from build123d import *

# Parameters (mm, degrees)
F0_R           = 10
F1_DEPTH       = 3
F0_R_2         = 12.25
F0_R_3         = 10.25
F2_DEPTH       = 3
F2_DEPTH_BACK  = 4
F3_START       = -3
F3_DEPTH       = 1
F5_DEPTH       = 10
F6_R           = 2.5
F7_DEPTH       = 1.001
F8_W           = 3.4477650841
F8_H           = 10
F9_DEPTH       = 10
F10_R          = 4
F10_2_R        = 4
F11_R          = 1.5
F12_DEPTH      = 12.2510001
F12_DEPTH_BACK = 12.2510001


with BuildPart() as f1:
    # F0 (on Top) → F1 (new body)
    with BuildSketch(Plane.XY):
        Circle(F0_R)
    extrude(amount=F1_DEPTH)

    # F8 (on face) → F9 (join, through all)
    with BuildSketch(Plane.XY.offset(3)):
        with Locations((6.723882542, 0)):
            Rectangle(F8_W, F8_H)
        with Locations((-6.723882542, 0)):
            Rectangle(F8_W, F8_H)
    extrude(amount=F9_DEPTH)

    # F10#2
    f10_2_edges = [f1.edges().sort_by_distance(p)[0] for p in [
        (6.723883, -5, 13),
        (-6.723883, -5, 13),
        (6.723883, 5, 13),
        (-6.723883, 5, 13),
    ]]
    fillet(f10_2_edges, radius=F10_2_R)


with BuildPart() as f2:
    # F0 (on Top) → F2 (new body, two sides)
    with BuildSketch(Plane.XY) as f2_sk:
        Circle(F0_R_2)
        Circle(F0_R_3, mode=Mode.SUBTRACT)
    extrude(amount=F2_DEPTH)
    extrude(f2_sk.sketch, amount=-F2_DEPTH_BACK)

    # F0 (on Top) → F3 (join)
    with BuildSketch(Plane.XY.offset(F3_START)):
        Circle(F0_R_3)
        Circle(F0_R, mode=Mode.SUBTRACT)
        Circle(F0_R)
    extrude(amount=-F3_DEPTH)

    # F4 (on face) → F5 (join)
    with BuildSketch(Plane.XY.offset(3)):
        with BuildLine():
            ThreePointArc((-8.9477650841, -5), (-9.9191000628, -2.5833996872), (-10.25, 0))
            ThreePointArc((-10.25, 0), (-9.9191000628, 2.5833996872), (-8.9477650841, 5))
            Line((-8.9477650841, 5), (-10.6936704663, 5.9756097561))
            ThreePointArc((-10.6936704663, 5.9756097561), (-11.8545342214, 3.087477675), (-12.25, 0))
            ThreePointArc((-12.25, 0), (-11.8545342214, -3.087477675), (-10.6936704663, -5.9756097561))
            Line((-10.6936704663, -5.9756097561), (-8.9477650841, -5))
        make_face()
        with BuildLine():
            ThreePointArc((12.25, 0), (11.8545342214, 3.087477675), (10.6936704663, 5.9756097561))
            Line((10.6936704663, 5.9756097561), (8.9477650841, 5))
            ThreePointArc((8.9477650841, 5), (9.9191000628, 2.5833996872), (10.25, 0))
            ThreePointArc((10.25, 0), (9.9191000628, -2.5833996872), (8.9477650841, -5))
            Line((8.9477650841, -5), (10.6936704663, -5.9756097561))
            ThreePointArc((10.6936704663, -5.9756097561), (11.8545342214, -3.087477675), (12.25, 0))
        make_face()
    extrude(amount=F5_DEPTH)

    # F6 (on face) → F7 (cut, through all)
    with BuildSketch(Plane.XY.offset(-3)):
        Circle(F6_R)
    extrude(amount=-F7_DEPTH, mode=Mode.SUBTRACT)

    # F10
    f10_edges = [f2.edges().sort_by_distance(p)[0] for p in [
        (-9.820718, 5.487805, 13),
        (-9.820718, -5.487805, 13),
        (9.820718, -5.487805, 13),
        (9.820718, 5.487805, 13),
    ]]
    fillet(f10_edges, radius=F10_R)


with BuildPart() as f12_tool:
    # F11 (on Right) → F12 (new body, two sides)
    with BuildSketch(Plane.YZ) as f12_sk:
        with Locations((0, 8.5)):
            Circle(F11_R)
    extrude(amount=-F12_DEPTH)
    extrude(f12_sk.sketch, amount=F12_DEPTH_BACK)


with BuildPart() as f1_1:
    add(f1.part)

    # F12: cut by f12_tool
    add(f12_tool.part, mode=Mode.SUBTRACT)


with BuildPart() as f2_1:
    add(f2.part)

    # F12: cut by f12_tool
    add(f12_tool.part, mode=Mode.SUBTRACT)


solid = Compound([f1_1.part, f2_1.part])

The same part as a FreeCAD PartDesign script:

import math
import FreeCAD as App
import Part
import Sketcher

V = App.Vector
Q = App.Units.Quantity


def edges_at(feature, points):
    """Names of the edges that pass closest to the given points."""
    edges = feature.Shape.Edges
    near = lambda p: min(range(len(edges)), key=lambda i: edges[i].distToShape(Part.Vertex(*p))[0])
    return sorted({f"Edge{near(p) + 1}" for p in points})

doc = App.newDocument("Part")
body = doc.addObject("PartDesign::Body", "Body")

sketch1 = doc.addObject("Sketcher::SketchObject", "Sketch")
body.addObject(sketch1)
sketch1.AttachmentSupport = (doc.XY_Plane, [""])
sketch1.MapMode = "FlatFace"
sketch1.addGeometry(Part.Circle(V(0, 0, 0), V(0, 0, 1), 10), False)
sketch1.addConstraint([
    Sketcher.Constraint("Coincident", 0, 3, -1, 1),
    Sketcher.Constraint("Diameter", 0, Q("20 mm")),
])
pad1 = doc.addObject("PartDesign::Pad", "Pad")
body.addObject(pad1)
pad1.Profile = sketch1
pad1.Length = 3

sketch2 = doc.addObject("Sketcher::SketchObject", "Sketch001")
body.addObject(sketch2)
sketch2.AttachmentSupport = (doc.XY_Plane, [""])
sketch2.MapMode = "FlatFace"
sketch2.AttachmentOffset = App.Placement(V(0, 0, 3), App.Rotation())
sketch2.addGeometry([
    Part.LineSegment(V(5, 5, 0), V(5, -5, 0)),
    Part.LineSegment(V(5, -5, 0), V(8.4, -5, 0)),
    Part.LineSegment(V(8.4, -5, 0), V(8.4, 5, 0)),
    Part.LineSegment(V(8.4, 5, 0), V(5, 5, 0)),
    Part.LineSegment(V(-8.4, 5, 0), V(-8.4, -5, 0)),
    Part.LineSegment(V(-8.4, -5, 0), V(-5, -5, 0)),
    Part.LineSegment(V(-5, -5, 0), V(-5, 5, 0)),
    Part.LineSegment(V(-5, 5, 0), V(-8.4, 5, 0)),
], False)
sketch2.addConstraint([
    Sketcher.Constraint("Coincident", 0, 2, 1, 1),
    Sketcher.Constraint("Coincident", 1, 2, 2, 1),
    Sketcher.Constraint("Coincident", 2, 2, 3, 1),
    Sketcher.Constraint("Coincident", 3, 2, 0, 1),
    Sketcher.Constraint("Coincident", 4, 2, 5, 1),
    Sketcher.Constraint("Coincident", 5, 2, 6, 1),
    Sketcher.Constraint("Coincident", 6, 2, 7, 1),
    Sketcher.Constraint("Coincident", 7, 2, 4, 1),
    Sketcher.Constraint("Vertical", 0),
    Sketcher.Constraint("Horizontal", 1),
    Sketcher.Constraint("Vertical", 2),
    Sketcher.Constraint("Horizontal", 3),
    Sketcher.Constraint("Vertical", 4),
    Sketcher.Constraint("Horizontal", 5),
    Sketcher.Constraint("Vertical", 6),
    Sketcher.Constraint("Horizontal", 7),
    Sketcher.Constraint("Symmetric", 2, 2, 4, 2, -1, 1),
    Sketcher.Constraint("Symmetric", 0, 2, 6, 2, -1, 1),
    Sketcher.Constraint("Horizontal", 1, 2, 4, 2),
    Sketcher.Constraint("DistanceY", 0, 2, 0, 1, Q("10 mm")),
    Sketcher.Constraint("DistanceX", -1, 1, 0, 2, Q("5 mm")),
    Sketcher.Constraint("DistanceX", 1, 1, 1, 2, Q("3.447765 mm")),
])
pad2 = doc.addObject("PartDesign::Pad", "Pad001")
body.addObject(pad2)
pad2.Profile = sketch2
pad2.Length = 10
doc.recompute()

fillet = doc.addObject("PartDesign::Fillet", "Fillet")
body.addObject(fillet)
fillet.Base = (pad2, edges_at(pad2, [
    (6.724, -5, 13),
    (-6.724, -5, 13),
    (6.724, 5, 13),
    (-6.724, 5, 13),
]))
fillet.Radius = 4
body2 = doc.addObject("PartDesign::Body", "Body001")

sketch3 = doc.addObject("Sketcher::SketchObject", "Sketch002")
body2.addObject(sketch3)
sketch3.AttachmentSupport = (doc.getObject("XY_Plane001"), [""])
sketch3.MapMode = "FlatFace"
sketch3.addGeometry([
    Part.Circle(V(0, 0, 0), V(0, 0, 1), 12),
    Part.Circle(V(0, 0, 0), V(0, 0, 1), 10),
], False)
sketch3.addConstraint([
    Sketcher.Constraint("Coincident", 0, 3, -1, 1),
    Sketcher.Constraint("Coincident", 1, 3, -1, 1),
    Sketcher.Constraint("Diameter", 0, Q("24.5 mm")),
    Sketcher.Constraint("Diameter", 1, Q("20.5 mm")),
])
pad3 = doc.addObject("PartDesign::Pad", "Pad002")
body2.addObject(pad3)
pad3.Profile = sketch3
pad3.Type = "TwoLengths"
pad3.Length = 3
pad3.Length2 = 4

sketch4 = doc.addObject("Sketcher::SketchObject", "Sketch003")
body2.addObject(sketch4)
sketch4.AttachmentSupport = (doc.getObject("XY_Plane001"), [""])
sketch4.MapMode = "FlatFace"
sketch4.AttachmentOffset = App.Placement(V(0, 0, -3), App.Rotation())
sketch4.addGeometry(Part.Circle(V(0, 0, 0), V(0, 0, 1), 10), False)
sketch4.addConstraint([
    Sketcher.Constraint("Coincident", 0, 3, -1, 1),
    Sketcher.Constraint("Diameter", 0, Q("20.5 mm")),
])
pad4 = doc.addObject("PartDesign::Pad", "Pad003")
body2.addObject(pad4)
pad4.Profile = sketch4
pad4.Length = 1
pad4.Reversed = True

sketch5 = doc.addObject("Sketcher::SketchObject", "Sketch004")
body2.addObject(sketch5)
sketch5.AttachmentSupport = (doc.getObject("XY_Plane001"), [""])
sketch5.MapMode = "FlatFace"
sketch5.AttachmentOffset = App.Placement(V(0, 0, 3), App.Rotation())
sketch5.addGeometry([
    Part.ArcOfCircle(Part.Circle(V(0, 0, 0), V(0, 0, 1), 10.3), math.radians(180), math.radians(209)),
    Part.ArcOfCircle(Part.Circle(V(0, 0, 0), V(0, 0, 1), 10.3), math.radians(151), math.radians(180)),
    Part.LineSegment(V(-8.9, 5, 0), V(-10.7, 6, 0)),
    Part.ArcOfCircle(Part.Circle(V(0, 0, 0), V(0, 0, 1), 12.2), math.radians(151), math.radians(180)),
    Part.ArcOfCircle(Part.Circle(V(0, 0, 0), V(0, 0, 1), 12.2), math.radians(180), math.radians(209)),
    Part.LineSegment(V(-10.7, -6, 0), V(-8.9, -5, 0)),
    Part.ArcOfCircle(Part.Circle(V(0, 0, 0), V(0, 0, 1), 12.2), math.radians(0), math.radians(29)),
    Part.LineSegment(V(10.7, 6, 0), V(8.9, 5, 0)),
    Part.ArcOfCircle(Part.Circle(V(0, 0, 0), V(0, 0, 1), 10.3), math.radians(0), math.radians(29)),
    Part.ArcOfCircle(Part.Circle(V(0, 0, 0), V(0, 0, 1), 10.3), math.radians(-29), math.radians(0)),
    Part.LineSegment(V(8.9, -5, 0), V(10.7, -6, 0)),
    Part.ArcOfCircle(Part.Circle(V(0, 0, 0), V(0, 0, 1), 12.2), math.radians(-29), math.radians(0)),
], False)
sketch5.addConstraint([
    Sketcher.Constraint("Tangent", 0, 1, 1, 2),
    Sketcher.Constraint("Coincident", 1, 1, 2, 1),
    Sketcher.Constraint("Coincident", 2, 2, 3, 1),
    Sketcher.Constraint("Tangent", 3, 2, 4, 1),
    Sketcher.Constraint("Coincident", 4, 2, 5, 1),
    Sketcher.Constraint("Coincident", 5, 2, 0, 2),
    Sketcher.Constraint("Coincident", 6, 2, 7, 1),
    Sketcher.Constraint("Coincident", 7, 2, 8, 2),
    Sketcher.Constraint("Tangent", 8, 1, 9, 2),
    Sketcher.Constraint("Coincident", 9, 1, 10, 1),
    Sketcher.Constraint("Coincident", 10, 2, 11, 1),
    Sketcher.Constraint("Tangent", 11, 2, 6, 1),
    Sketcher.Constraint("Coincident", 0, 3, -1, 1),
    Sketcher.Constraint("Coincident", 3, 3, -1, 1),
    Sketcher.Constraint("Coincident", 6, 3, -1, 1),
    Sketcher.Constraint("Coincident", 8, 3, -1, 1),
    Sketcher.Constraint("Equal", 0, 1),
    Sketcher.Constraint("Equal", 3, 4),
    Sketcher.Constraint("Equal", 4, 6),
    Sketcher.Constraint("Equal", 1, 8),
    Sketcher.Constraint("Equal", 8, 9),
    Sketcher.Constraint("Equal", 6, 11),
    Sketcher.Constraint("PointOnObject", 0, 1, -1),
    Sketcher.Constraint("PointOnObject", 3, 2, -1),
    Sketcher.Constraint("PointOnObject", 8, 1, -1),
    Sketcher.Constraint("PointOnObject", 11, 2, -1),
    Sketcher.Constraint("Parallel", 5, 7),
    Sketcher.Constraint("Parallel", 2, 10),
    Sketcher.Constraint("Horizontal", 2, 2, 6, 2),
    Sketcher.Constraint("Horizontal", 1, 1, 7, 2),
    Sketcher.Constraint("Horizontal", 5, 2, 9, 1),
    Sketcher.Constraint("Vertical", 2, 2, 4, 2),
    Sketcher.Constraint("Radius", 0, Q("10.25 mm")),
    Sketcher.Constraint("Radius", 3, Q("12.25 mm")),
    Sketcher.Constraint("DistanceY", -1, 1, 1, 1, Q("5 mm")),
    Sketcher.Constraint("DistanceX", 2, 2, -1, 1, Q("10.69367 mm")),
])
pad5 = doc.addObject("PartDesign::Pad", "Pad004")
body2.addObject(pad5)
pad5.Profile = sketch5
pad5.Length = 10

sketch6 = doc.addObject("Sketcher::SketchObject", "Sketch005")
body2.addObject(sketch6)
sketch6.AttachmentSupport = (doc.getObject("XY_Plane001"), [""])
sketch6.MapMode = "FlatFace"
sketch6.AttachmentOffset = App.Placement(V(0, 0, -3), App.Rotation())
sketch6.addGeometry(Part.Circle(V(0, 0, 0), V(0, 0, 1), 2.5), False)
sketch6.addConstraint([
    Sketcher.Constraint("Coincident", 0, 3, -1, 1),
    Sketcher.Constraint("Diameter", 0, Q("5 mm")),
])
pocket1 = doc.addObject("PartDesign::Pocket", "Pocket")
body2.addObject(pocket1)
pocket1.Profile = sketch6
pocket1.Type = "ThroughAll"
doc.recompute()

fillet2 = doc.addObject("PartDesign::Fillet", "Fillet001")
body2.addObject(fillet2)
fillet2.Base = (pocket1, edges_at(pocket1, [
    (-9.821, 5.488, 13),
    (-9.821, -5.488, 13),
    (9.821, -5.488, 13),
    (9.821, 5.488, 13),
]))
fillet2.Radius = 4
body3 = doc.addObject("PartDesign::Body", "Body002")

sketch7 = doc.addObject("Sketcher::SketchObject", "Sketch006")
body3.addObject(sketch7)
sketch7.AttachmentSupport = (doc.getObject("YZ_Plane002"), [""])
sketch7.MapMode = "FlatFace"
sketch7.addGeometry(Part.Circle(V(0, 8.5, 0), V(0, 0, 1), 1.5), False)
sketch7.addConstraint([
    Sketcher.Constraint("PointOnObject", 0, 3, -2),
    Sketcher.Constraint("Diameter", 0, Q("3 mm")),
    Sketcher.Constraint("DistanceY", -1, 1, 0, 3, Q("8.5 mm")),
])
pad6 = doc.addObject("PartDesign::Pad", "Pad005")
body3.addObject(pad6)
pad6.Profile = sketch7
pad6.Type = "TwoLengths"
pad6.Length = 12.251
pad6.Length2 = 12.251
pad6.Reversed = True
doc.recompute()

body4 = doc.addObject("PartDesign::Body", "Body003")
body4.BaseFeature = body3
boolean = doc.addObject("PartDesign::Boolean", "Boolean")
body.addObject(boolean)
boolean.Type = "Cut"
boolean.addObjects([body4])
doc.recompute()

boolean2 = doc.addObject("PartDesign::Boolean", "Boolean001")
body2.addObject(boolean2)
boolean2.Type = "Cut"
boolean2.addObjects([body3])

doc.recompute()
